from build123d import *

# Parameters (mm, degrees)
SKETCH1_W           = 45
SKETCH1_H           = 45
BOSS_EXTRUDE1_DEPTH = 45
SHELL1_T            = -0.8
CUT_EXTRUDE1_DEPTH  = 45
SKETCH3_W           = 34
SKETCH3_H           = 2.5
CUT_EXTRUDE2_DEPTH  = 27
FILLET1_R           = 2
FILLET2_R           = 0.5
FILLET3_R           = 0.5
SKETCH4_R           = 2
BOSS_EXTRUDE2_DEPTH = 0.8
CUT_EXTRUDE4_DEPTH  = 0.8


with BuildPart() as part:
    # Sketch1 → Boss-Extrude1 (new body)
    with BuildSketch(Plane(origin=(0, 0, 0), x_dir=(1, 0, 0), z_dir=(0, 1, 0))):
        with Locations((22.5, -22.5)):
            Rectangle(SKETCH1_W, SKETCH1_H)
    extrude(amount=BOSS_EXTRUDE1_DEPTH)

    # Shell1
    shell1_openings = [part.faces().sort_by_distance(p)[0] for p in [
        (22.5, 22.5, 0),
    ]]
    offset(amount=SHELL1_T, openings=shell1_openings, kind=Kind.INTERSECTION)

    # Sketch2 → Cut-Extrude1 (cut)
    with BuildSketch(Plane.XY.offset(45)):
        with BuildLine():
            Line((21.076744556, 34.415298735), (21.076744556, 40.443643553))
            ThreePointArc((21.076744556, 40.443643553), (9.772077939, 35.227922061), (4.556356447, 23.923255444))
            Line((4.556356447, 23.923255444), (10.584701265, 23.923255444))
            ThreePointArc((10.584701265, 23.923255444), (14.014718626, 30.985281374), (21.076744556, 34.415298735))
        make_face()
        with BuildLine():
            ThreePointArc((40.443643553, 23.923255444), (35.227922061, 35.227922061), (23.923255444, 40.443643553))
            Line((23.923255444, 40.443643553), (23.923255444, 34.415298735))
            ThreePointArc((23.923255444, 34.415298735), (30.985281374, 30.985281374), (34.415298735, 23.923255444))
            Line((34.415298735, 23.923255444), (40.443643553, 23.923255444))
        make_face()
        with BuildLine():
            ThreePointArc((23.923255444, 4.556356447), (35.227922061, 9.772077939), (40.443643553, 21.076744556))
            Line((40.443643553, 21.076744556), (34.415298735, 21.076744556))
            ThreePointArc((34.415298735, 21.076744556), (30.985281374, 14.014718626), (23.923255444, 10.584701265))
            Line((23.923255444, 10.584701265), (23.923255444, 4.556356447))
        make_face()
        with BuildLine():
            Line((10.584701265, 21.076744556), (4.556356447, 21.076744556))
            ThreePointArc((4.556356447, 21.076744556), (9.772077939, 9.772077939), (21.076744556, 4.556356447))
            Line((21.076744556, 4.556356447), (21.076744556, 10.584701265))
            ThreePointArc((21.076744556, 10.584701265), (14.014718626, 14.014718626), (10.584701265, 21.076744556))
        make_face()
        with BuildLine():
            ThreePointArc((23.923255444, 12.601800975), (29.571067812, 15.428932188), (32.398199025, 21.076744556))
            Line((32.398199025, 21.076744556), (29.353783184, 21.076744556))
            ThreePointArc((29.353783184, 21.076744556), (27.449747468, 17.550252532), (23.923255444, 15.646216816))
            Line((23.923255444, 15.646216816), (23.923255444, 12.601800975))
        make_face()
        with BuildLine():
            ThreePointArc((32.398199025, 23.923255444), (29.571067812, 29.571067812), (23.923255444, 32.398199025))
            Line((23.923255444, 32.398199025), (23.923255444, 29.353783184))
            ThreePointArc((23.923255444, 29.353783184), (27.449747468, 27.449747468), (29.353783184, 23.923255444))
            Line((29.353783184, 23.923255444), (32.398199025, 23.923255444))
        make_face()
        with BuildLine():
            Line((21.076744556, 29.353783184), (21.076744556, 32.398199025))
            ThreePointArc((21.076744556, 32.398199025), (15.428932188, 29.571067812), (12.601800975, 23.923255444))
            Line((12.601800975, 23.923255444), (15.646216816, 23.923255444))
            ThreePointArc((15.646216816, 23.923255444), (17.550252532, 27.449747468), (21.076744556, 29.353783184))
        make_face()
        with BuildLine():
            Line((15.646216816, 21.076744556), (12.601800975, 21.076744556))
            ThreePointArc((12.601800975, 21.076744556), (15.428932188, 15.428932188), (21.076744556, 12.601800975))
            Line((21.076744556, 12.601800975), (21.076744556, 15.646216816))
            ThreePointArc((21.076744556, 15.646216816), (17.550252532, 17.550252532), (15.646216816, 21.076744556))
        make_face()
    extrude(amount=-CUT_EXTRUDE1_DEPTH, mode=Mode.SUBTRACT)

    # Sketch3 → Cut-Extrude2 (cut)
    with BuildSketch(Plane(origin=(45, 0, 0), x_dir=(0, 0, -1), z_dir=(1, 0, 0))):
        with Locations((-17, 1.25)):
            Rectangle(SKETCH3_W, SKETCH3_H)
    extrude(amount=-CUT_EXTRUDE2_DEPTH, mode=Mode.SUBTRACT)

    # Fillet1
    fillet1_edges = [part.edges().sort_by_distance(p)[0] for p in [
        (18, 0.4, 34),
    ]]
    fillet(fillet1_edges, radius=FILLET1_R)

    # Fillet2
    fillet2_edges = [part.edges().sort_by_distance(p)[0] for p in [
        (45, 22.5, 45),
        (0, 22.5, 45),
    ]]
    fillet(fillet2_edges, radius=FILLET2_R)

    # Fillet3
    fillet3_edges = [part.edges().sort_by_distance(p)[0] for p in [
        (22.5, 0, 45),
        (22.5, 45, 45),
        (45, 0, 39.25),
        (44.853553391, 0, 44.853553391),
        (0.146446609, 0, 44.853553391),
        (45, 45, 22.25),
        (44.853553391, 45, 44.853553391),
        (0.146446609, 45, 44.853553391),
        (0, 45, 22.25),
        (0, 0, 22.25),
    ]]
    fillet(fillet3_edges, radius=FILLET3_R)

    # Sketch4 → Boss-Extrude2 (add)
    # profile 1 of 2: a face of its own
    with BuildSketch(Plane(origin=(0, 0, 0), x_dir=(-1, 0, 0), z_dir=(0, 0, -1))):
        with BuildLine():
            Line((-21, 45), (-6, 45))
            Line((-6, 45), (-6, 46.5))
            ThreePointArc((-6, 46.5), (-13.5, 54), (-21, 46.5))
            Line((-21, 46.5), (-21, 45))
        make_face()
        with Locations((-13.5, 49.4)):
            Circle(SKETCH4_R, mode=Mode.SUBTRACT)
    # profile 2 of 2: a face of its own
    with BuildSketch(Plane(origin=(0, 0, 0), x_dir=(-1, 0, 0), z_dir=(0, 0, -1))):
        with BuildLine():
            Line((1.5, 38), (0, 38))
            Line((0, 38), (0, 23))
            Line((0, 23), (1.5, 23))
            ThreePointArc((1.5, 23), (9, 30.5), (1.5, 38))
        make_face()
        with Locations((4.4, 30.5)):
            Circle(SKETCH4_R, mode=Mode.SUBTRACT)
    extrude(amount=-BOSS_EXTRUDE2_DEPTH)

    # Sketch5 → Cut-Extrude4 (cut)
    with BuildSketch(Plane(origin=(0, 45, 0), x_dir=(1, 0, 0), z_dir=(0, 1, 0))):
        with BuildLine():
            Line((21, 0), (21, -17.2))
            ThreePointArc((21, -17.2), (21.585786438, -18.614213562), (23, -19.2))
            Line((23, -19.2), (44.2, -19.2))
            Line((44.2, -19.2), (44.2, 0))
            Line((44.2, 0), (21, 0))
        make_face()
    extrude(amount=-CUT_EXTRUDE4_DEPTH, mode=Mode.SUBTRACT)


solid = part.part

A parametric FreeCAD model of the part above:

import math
import FreeCAD as App
import Part
import Sketcher
from FreeCAD import Vector
Q = App.Units.Quantity


def edges_at(feature, points):
    """Names of the edges that pass closest to the given points."""
    edges = feature.Shape.Edges
    near = lambda p: min(range(len(edges)), key=lambda i: edges[i].distToShape(Part.Vertex(*p))[0])
    return sorted({f"Edge{near(p) + 1}" for p in points})


def faces_at(feature, points):
    """Names of the faces that lie closest to the given points."""
    faces = feature.Shape.Faces
    near = lambda p: min(range(len(faces)), key=lambda i: faces[i].distToShape(Part.Vertex(*p))[0])
    return sorted({f"Face{near(p) + 1}" for p in points})


def add_polygon(sketch, points):
    """Adds a closed chain of lines whose ends are joined by coincident constraints."""
    first, n = sketch.GeometryCount, len(points)
    for a, b in zip(points, points[1:] + points[:1]):
        sketch.addGeometry(Part.LineSegment(App.Vector(*a, 0), App.Vector(*b, 0)), False)
    for i in range(n):
        sketch.addConstraint(Sketcher.Constraint("Coincident", first + i, 2, first + (i + 1) % n, 1))

doc = App.newDocument("Part")
body = doc.addObject("PartDesign::Body", "Body")

# Sketch on XZ plane
sketch1 = body.newObject("Sketcher::SketchObject", "Sketch")
sketch1.AttachmentSupport = (doc.getObject("XZ_Plane"), [""])
sketch1.MapMode = "FlatFace"
add_polygon(sketch1, [(0, 0), (0, 45), (45, 45), (45, 0)])  # lines 0-3
sketch1.addConstraint(Sketcher.Constraint("Vertical", 0))
sketch1.addConstraint(Sketcher.Constraint("Horizontal", 1))
sketch1.addConstraint(Sketcher.Constraint("Vertical", 2))
sketch1.addConstraint(Sketcher.Constraint("Horizontal", 3))
sketch1.addConstraint(Sketcher.Constraint("Coincident", 3, 2, -1, 1))
sketch1.addConstraint(Sketcher.Constraint("Equal", 3, 0))
sketch1.addConstraint(Sketcher.Constraint("DistanceX", 1, 1, 1, 2, Q("45 mm")))
pad1 = body.newObject("PartDesign::Pad", "Pad")
pad1.Profile = sketch1
pad1.Length = 45
pad1.Reversed = True
doc.recompute()

thickness = body.newObject("PartDesign::Thickness", "Thickness")
thickness.Base = (pad1, faces_at(pad1, [(22.5, 22.5, 0)]))
thickness.Value = 0.8
thickness.Reversed = True
thickness.Join = "Intersection"

# Sketch on XY plane
sketch2 = body.newObject("Sketcher::SketchObject", "Sketch001")
sketch2.AttachmentSupport = (doc.getObject("XY_Plane"), [""])
sketch2.MapMode = "FlatFace"
sketch2.AttachmentOffset = App.Placement(Vector(0, 0, 45), App.Rotation())
sketch2.addGeometry(Part.LineSegment(Vector(21.1, 34.4, 0), Vector(21.1, 40.4, 0)), False)
sketch2.addGeometry(Part.ArcOfCircle(Part.Circle(Vector(22.5, 22.5, 0), Vector(0, 0, 1), 18), math.radians(95), math.radians(175)), False)
sketch2.addGeometry(Part.LineSegment(Vector(4.6, 23.9, 0), Vector(10.6, 23.9, 0)), False)
sketch2.addGeometry(Part.ArcOfCircle(Part.Circle(Vector(22.5, 22.5, 0), Vector(0, 0, 1), 12), math.radians(97), math.radians(173)), False)
sketch2.addGeometry(Part.ArcOfCircle(Part.Circle(Vector(22.5, 22.5, 0), Vector(0, 0, 1), 18), math.radians(5), math.radians(85)), False)
sketch2.addGeometry(Part.LineSegment(Vector(23.9, 40.4, 0), Vector(23.9, 34.4, 0)), False)
sketch2.addGeometry(Part.ArcOfCircle(Part.Circle(Vector(22.5, 22.5, 0), Vector(0, 0, 1), 12), math.radians(7), math.radians(83)), False)
sketch2.addGeometry(Part.LineSegment(Vector(34.4, 23.9, 0), Vector(40.4, 23.9, 0)), False)
sketch2.addGeometry(Part.ArcOfCircle(Part.Circle(Vector(22.5, 22.5, 0), Vector(0, 0, 1), 18), math.radians(-85), math.radians(-5)), False)
sketch2.addGeometry(Part.LineSegment(Vector(40.4, 21.1, 0), Vector(34.4, 21.1, 0)), False)
sketch2.addGeometry(Part.ArcOfCircle(Part.Circle(Vector(22.5, 22.5, 0), Vector(0, 0, 1), 12), math.radians(-83), math.radians(-7)), False)
sketch2.addGeometry(Part.LineSegment(Vector(23.9, 10.6, 0), Vector(23.9, 4.6, 0)), False)
sketch2.addGeometry(Part.LineSegment(Vector(10.6, 21.1, 0), Vector(4.6, 21.1, 0)), False)
sketch2.addGeometry(Part.ArcOfCircle(Part.Circle(Vector(22.5, 22.5, 0), Vector(0, 0, 1), 18), math.radians(-175), math.radians(-95)), False)
sketch2.addGeometry(Part.LineSegment(Vector(21.1, 4.6, 0), Vector(21.1, 10.6, 0)), False)
sketch2.addGeometry(Part.ArcOfCircle(Part.Circle(Vector(22.5, 22.5, 0), Vector(0, 0, 1), 12), math.radians(-173), math.radians(-97)), False)
sketch2.addGeometry(Part.ArcOfCircle(Part.Circle(Vector(22.5, 22.5, 0), Vector(0, 0, 1), 10), math.radians(-82), math.radians(-8)), False)
sketch2.addGeometry(Part.LineSegment(Vector(32.4, 21.1, 0), Vector(29.4, 21.1, 0)), False)
sketch2.addGeometry(Part.ArcOfCircle(Part.Circle(Vector(22.5, 22.5, 0), Vector(0, 0, 1), 7), math.radians(-78), math.radians(-12)), False)
sketch2.addGeometry(Part.LineSegment(Vector(23.9, 15.6, 0), Vector(23.9, 12.6, 0)), False)
sketch2.addGeometry(Part.ArcOfCircle(Part.Circle(Vector(22.5, 22.5, 0), Vector(0, 0, 1), 10), math.radians(8), math.radians(82)), False)
sketch2.addGeometry(Part.LineSegment(Vector(23.9, 32.4, 0), Vector(23.9, 29.4, 0)), False)
sketch2.addGeometry(Part.ArcOfCircle(Part.Circle(Vector(22.5, 22.5, 0), Vector(0, 0, 1), 7), math.radians(12), math.radians(78)), False)
sketch2.addGeometry(Part.LineSegment(Vector(29.4, 23.9, 0), Vector(32.4, 23.9, 0)), False)
sketch2.addGeometry(Part.LineSegment(Vector(21.1, 29.4, 0), Vector(21.1, 32.4, 0)), False)
sketch2.addGeometry(Part.ArcOfCircle(Part.Circle(Vector(22.5, 22.5, 0), Vector(0, 0, 1), 10), math.radians(98), math.radians(172)), False)
sketch2.addGeometry(Part.LineSegment(Vector(12.6, 23.9, 0), Vector(15.6, 23.9, 0)), False)
sketch2.addGeometry(Part.ArcOfCircle(Part.Circle(Vector(22.5, 22.5, 0), Vector(0, 0, 1), 7), math.radians(102), math.radians(168)), False)
sketch2.addGeometry(Part.LineSegment(Vector(15.6, 21.1, 0), Vector(12.6, 21.1, 0)), False)
sketch2.addGeometry(Part.ArcOfCircle(Part.Circle(Vector(22.5, 22.5, 0), Vector(0, 0, 1), 10), math.radians(-172), math.radians(-98)), False)
sketch2.addGeometry(Part.LineSegment(Vector(21.1, 12.6, 0), Vector(21.1, 15.6, 0)), False)
sketch2.addGeometry(Part.ArcOfCircle(Part.Circle(Vector(22.5, 22.5, 0), Vector(0, 0, 1), 7), math.radians(-168), math.radians(-102)), False)
sketch2.addConstraint(Sketcher.Constraint("Coincident", 0, 2, 1, 1))
sketch2.addConstraint(Sketcher.Constraint("Coincident", 1, 2, 2, 1))
sketch2.addConstraint(Sketcher.Constraint("Coincident", 2, 2, 3, 2))
sketch2.addConstraint(Sketcher.Constraint("Coincident", 3, 1, 0, 1))
sketch2.addConstraint(Sketcher.Constraint("Coincident", 4, 2, 5, 1))
sketch2.addConstraint(Sketcher.Constraint("Coincident", 5, 2, 6, 2))
sketch2.addConstraint(Sketcher.Constraint("Coincident", 6, 1, 7, 1))
sketch2.addConstraint(Sketcher.Constraint("Coincident", 7, 2, 4, 1))
sketch2.addConstraint(Sketcher.Constraint("Coincident", 8, 2, 9, 1))
sketch2.addConstraint(Sketcher.Constraint("Coincident", 9, 2, 10, 2))
sketch2.addConstraint(Sketcher.Constraint("Coincident", 10, 1, 11, 1))
sketch2.addConstraint(Sketcher.Constraint("Coincident", 11, 2, 8, 1))
sketch2.addConstraint(Sketcher.Constraint("Coincident", 12, 2, 13, 1))
sketch2.addConstraint(Sketcher.Constraint("Coincident", 13, 2, 14, 1))
sketch2.addConstraint(Sketcher.Constraint("Coincident", 14, 2, 15, 2))
sketch2.addConstraint(Sketcher.Constraint("Coincident", 15, 1, 12, 1))
sketch2.addConstraint(Sketcher.Constraint("Coincident", 16, 2, 17, 1))
sketch2.addConstraint(Sketcher.Constraint("Coincident", 17, 2, 18, 2))
sketch2.addConstraint(Sketcher.Constraint("Coincident", 18, 1, 19, 1))
sketch2.addConstraint(Sketcher.Constraint("Coincident", 19, 2, 16, 1))
sketch2.addConstraint(Sketcher.Constraint("Coincident", 20, 2, 21, 1))
sketch2.addConstraint(Sketcher.Constraint("Coincident", 21, 2, 22, 2))
sketch2.addConstraint(Sketcher.Constraint("Coincident", 22, 1, 23, 1))
sketch2.addConstraint(Sketcher.Constraint("Coincident", 23, 2, 20, 1))
sketch2.addConstraint(Sketcher.Constraint("Coincident", 24, 2, 25, 1))
sketch2.addConstraint(Sketcher.Constraint("Coincident", 25, 2, 26, 1))
sketch2.addConstraint(Sketcher.Constraint("Coincident", 26, 2, 27, 2))
sketch2.addConstraint(Sketcher.Constraint("Coincident", 27, 1, 24, 1))
sketch2.addConstraint(Sketcher.Constraint("Coincident", 28, 2, 29, 1))
sketch2.addConstraint(Sketcher.Constraint("Coincident", 29, 2, 30, 1))
sketch2.addConstraint(Sketcher.Constraint("Coincident", 30, 2, 31, 2))
sketch2.addConstraint(Sketcher.Constraint("Coincident", 31, 1, 28, 1))
sketch2.addConstraint(Sketcher.Constraint("Vertical", 0))
sketch2.addConstraint(Sketcher.Constraint("Horizontal", 2))
sketch2.addConstraint(Sketcher.Constraint("Vertical", 5))
sketch2.addConstraint(Sketcher.Constraint("Horizontal", 7))
sketch2.addConstraint(Sketcher.Constraint("Horizontal", 9))
sketch2.addConstraint(Sketcher.Constraint("Vertical", 11))
sketch2.addConstraint(Sketcher.Constraint("Horizontal", 12))
sketch2.addConstraint(Sketcher.Constraint("Vertical", 14))
sketch2.addConstraint(Sketcher.Constraint("Horizontal", 17))
sketch2.addConstraint(Sketcher.Constraint("Vertical", 19))
sketch2.addConstraint(Sketcher.Constraint("Vertical", 21))
sketch2.addConstraint(Sketcher.Constraint("Horizontal", 23))
sketch2.addConstraint(Sketcher.Constraint("Vertical", 24))
sketch2.addConstraint(Sketcher.Constraint("Horizontal", 26))
sketch2.addConstraint(Sketcher.Constraint("Horizontal", 28))
sketch2.addConstraint(Sketcher.Constraint("Vertical", 30))
sketch2.addConstraint(Sketcher.Constraint("Coincident", 3, 3, 1, 3))
sketch2.addConstraint(Sketcher.Constraint("Coincident", 4, 3, 1, 3))
sketch2.addConstraint(Sketcher.Constraint("Coincident", 6, 3, 1, 3))
sketch2.addConstraint(Sketcher.Constraint("Coincident", 8, 3, 1, 3))
sketch2.addConstraint(Sketcher.Constraint("Coincident", 10, 3, 1, 3))
sketch2.addConstraint(Sketcher.Constraint("Coincident", 13, 3, 1, 3))
sketch2.addConstraint(Sketcher.Constraint("Coincident", 15, 3, 1, 3))
sketch2.addConstraint(Sketcher.Constraint("Coincident", 16, 3, 1, 3))
sketch2.addConstraint(Sketcher.Constraint("Coincident", 18, 3, 1, 3))
sketch2.addConstraint(Sketcher.Constraint("Coincident", 20, 3, 1, 3))
sketch2.addConstraint(Sketcher.Constraint("Coincident", 22, 3, 1, 3))
sketch2.addConstraint(Sketcher.Constraint("Coincident", 25, 3, 1, 3))
sketch2.addConstraint(Sketcher.Constraint("Coincident", 27, 3, 1, 3))
sketch2.addConstraint(Sketcher.Constraint("Coincident", 29, 3, 1, 3))
sketch2.addConstraint(Sketcher.Constraint("Coincident", 31, 3, 1, 3))
sketch2.addConstraint(Sketcher.Constraint("Equal", 1, 4))
sketch2.addConstraint(Sketcher.Constraint("Equal", 3, 6))
sketch2.addConstraint(Sketcher.Constraint("Equal", 4, 8))
sketch2.addConstraint(Sketcher.Constraint("Equal", 6, 10))
sketch2.addConstraint(Sketcher.Constraint("Equal", 8, 13))
sketch2.addConstraint(Sketcher.Constraint("Equal", 10, 15))
sketch2.addConstraint(Sketcher.Constraint("Equal", 16, 20))
sketch2.addConstraint(Sketcher.Constraint("Equal", 18, 22))
sketch2.addConstraint(Sketcher.Constraint("Equal", 20, 25))
sketch2.addConstraint(Sketcher.Constraint("Equal", 22, 27))
sketch2.addConstraint(Sketcher.Constraint("Equal", 25, 29))
sketch2.addConstraint(Sketcher.Constraint("Equal", 27, 31))
sketch2.addConstraint(Sketcher.Constraint("Horizontal", 0, 2, 4, 2))
sketch2.addConstraint(Sketcher.Constraint("Horizontal", 2, 2, 6, 1))
sketch2.addConstraint(Sketcher.Constraint("Horizontal", 9, 2, 12, 2))
sketch2.addConstraint(Sketcher.Constraint("Horizontal", 11, 2, 13, 2))
sketch2.addConstraint(Sketcher.Constraint("Horizontal", 15, 1, 16, 2))
sketch2.addConstraint(Sketcher.Constraint("Horizontal", 7, 2, 22, 1))
sketch2.addConstraint(Sketcher.Constraint("Horizontal", 20, 2, 24, 2))
sketch2.addConstraint(Sketcher.Constraint("Horizontal", 23, 2, 25, 2))
sketch2.addConstraint(Sketcher.Constraint("Horizontal", 17, 2, 28, 2))
sketch2.addConstraint(Sketcher.Constraint("Horizontal", 19, 2, 29, 2))
sketch2.addConstraint(Sketcher.Constraint("Vertical", 7, 2, 8, 2))
sketch2.addConstraint(Sketcher.Constraint("Vertical", 5, 2, 10, 1))
sketch2.addConstraint(Sketcher.Constraint("Vertical", 11, 2, 18, 1))
sketch2.addConstraint(Sketcher.Constraint("Vertical", 19, 2, 20, 2))
sketch2.addConstraint(Sketcher.Constraint("Equal", 12, 0))
sketch2.addConstraint(Sketcher.Constraint("Radius", 1, Q("18 mm")))
sketch2.addConstraint(Sketcher.Constraint("Radius", 3, Q("12 mm")))
sketch2.addConstraint(Sketcher.Constraint("Radius", 16, Q("10 mm")))
sketch2.addConstraint(Sketcher.Constraint("Radius", 18, Q("7 mm")))
sketch2.addConstraint(Sketcher.Constraint("DistanceX", -1, 1, 1, 3, Q("22.5 mm")))
sketch2.addConstraint(Sketcher.Constraint("DistanceY", -1, 1, 1, 3, Q("22.5 mm")))
sketch2.addConstraint(Sketcher.Constraint("DistanceX", -1, 1, 2, 2, Q("10.584701 mm")))
pocket1 = body.newObject("PartDesign::Pocket", "Pocket")
pocket1.Profile = sketch2
pocket1.Length = 45

# Sketch on YZ plane
sketch3 = body.newObject("Sketcher::SketchObject", "Sketch002")
sketch3.AttachmentSupport = (doc.getObject("YZ_Plane"), [""])
sketch3.MapMode = "FlatFace"
sketch3.AttachmentOffset = App.Placement(Vector(0, 0, 45), App.Rotation())
add_polygon(sketch3, [(2.5, 34), (0, 34), (0, 0), (2.5, 0)])  # lines 0-3
sketch3.addConstraint(Sketcher.Constraint("Horizontal", 0))
sketch3.addConstraint(Sketcher.Constraint("Vertical", 1))
sketch3.addConstraint(Sketcher.Constraint("Horizontal", 2))
sketch3.addConstraint(Sketcher.Constraint("Vertical", 3))
sketch3.addConstraint(Sketcher.Constraint("Coincident", 1, 2, -1, 1))
sketch3.addConstraint(Sketcher.Constraint("DistanceY", 1, 2, 1, 1, Q("34 mm")))
sketch3.addConstraint(Sketcher.Constraint("DistanceX", 0, 2, 0, 1, Q("2.5 mm")))
pocket2 = body.newObject("PartDesign::Pocket", "Pocket001")
pocket2.Profile = sketch3
pocket2.Length = 27
doc.recompute()

fillet = body.newObject("PartDesign::Fillet", "Fillet")
fillet.Base = (pocket2, edges_at(pocket2, [(18, 0.4, 34)]))
fillet.Radius = 2
doc.recompute()

fillet2 = body.newObject("PartDesign::Fillet", "Fillet001")
fillet2.Base = (fillet, edges_at(fillet, [(45, 22.5, 45), (0, 22.5, 45)]))
fillet2.Radius = 0.5
doc.recompute()

fillet3 = body.newObject("PartDesign::Fillet", "Fillet002")
fillet3.Base = (fillet2, edges_at(fillet2, [
    (22.5, 0, 45),
    (22.5, 45, 45),
    (45, 0, 39.25),
    (44.854, 0, 44.854),
    (0.146, 0, 44.854),
    (45, 45, 22.25),
    (44.854, 45, 44.854),
    (0.146, 45, 44.854),
    (0, 45, 22.25),
    (0, 0, 22.25),
]))
fillet3.Radius = 0.5

# Sketch on XY plane
sketch4 = body.newObject("Sketcher::SketchObject", "Sketch003")
sketch4.AttachmentSupport = (doc.getObject("XY_Plane"), [""])
sketch4.MapMode = "FlatFace"
sketch4.addGeometry(Part.LineSegment(Vector(21, 45, 0), Vector(6, 45, 0)), False)
sketch4.addGeometry(Part.LineSegment(Vector(6, 45, 0), Vector(6, 46.5, 0)), False)
sketch4.addGeometry(Part.ArcOfCircle(Part.Circle(Vector(13.5, 46.5, 0), Vector(0, 0, 1), 7.5), math.radians(0), math.radians(180)), False)
sketch4.addGeometry(Part.LineSegment(Vector(21, 46.5, 0), Vector(21, 45, 0)), False)
sketch4.addGeometry(Part.Circle(Vector(13.5, 49.4, 0), Vector(0, 0, 1), 2), False)
sketch4.addGeometry(Part.LineSegment(Vector(-1.5, 38, 0), Vector(0, 38, 0)), False)
sketch4.addGeometry(Part.LineSegment(Vector(0, 38, 0), Vector(0, 23, 0)), False)
sketch4.addGeometry(Part.LineSegment(Vector(0, 23, 0), Vector(-1.5, 23, 0)), False)
sketch4.addGeometry(Part.ArcOfCircle(Part.Circle(Vector(-1.5, 30.5, 0), Vector(0, 0, 1), 7.5), math.radians(90), math.radians(270)), False)
sketch4.addGeometry(Part.Circle(Vector(-4.4, 30.5, 0), Vector(0, 0, 1), 2), False)
sketch4.addConstraint(Sketcher.Constraint("Coincident", 0, 2, 1, 1))
sketch4.addConstraint(Sketcher.Constraint("Tangent", 1, 2, 2, 2))
sketch4.addConstraint(Sketcher.Constraint("Tangent", 2, 1, 3, 1))
sketch4.addConstraint(Sketcher.Constraint("Coincident", 3, 2, 0, 1))
sketch4.addConstraint(Sketcher.Constraint("Coincident", 5, 2, 6, 1))
sketch4.addConstraint(Sketcher.Constraint("Coincident", 6, 2, 7, 1))
sketch4.addConstraint(Sketcher.Constraint("Tangent", 7, 2, 8, 2))
sketch4.addConstraint(Sketcher.Constraint("Tangent", 8, 1, 5, 1))
sketch4.addConstraint(Sketcher.Constraint("Horizontal", 0))
sketch4.addConstraint(Sketcher.Constraint("Vertical", 1))
sketch4.addConstraint(Sketcher.Constraint("Vertical", 3))
sketch4.addConstraint(Sketcher.Constraint("Horizontal", 5))
sketch4.addConstraint(Sketcher.Constraint("Vertical", 6))
sketch4.addConstraint(Sketcher.Constraint("Horizontal", 7))
sketch4.addConstraint(Sketcher.Constraint("Equal", 2, 8))
sketch4.addConstraint(Sketcher.Constraint("Equal", 4, 9))
sketch4.addConstraint(Sketcher.Constraint("PointOnObject", 5, 2, -2))
sketch4.addConstraint(Sketcher.Constraint("Horizontal", 8, 3, 9, 3))
sketch4.addConstraint(Sketcher.Constraint("Vertical", 2, 3, 4, 3))
sketch4.addConstraint(Sketcher.Constraint("Equal", 7, 1))
sketch4.addConstraint(Sketcher.Constraint("Diameter", 4, Q("4 mm")))
sketch4.addConstraint(Sketcher.Constraint("Radius", 2, Q("7.5 mm")))
sketch4.addConstraint(Sketcher.Constraint("DistanceX", 5, 1, 5, 2, Q("1.5 mm")))
sketch4.addConstraint(Sketcher.Constraint("DistanceX", -1, 1, 0, 2, Q("6 mm")))
sketch4.addConstraint(Sketcher.Constraint("DistanceY", -1, 1, 0, 2, Q("45 mm")))
sketch4.addConstraint(Sketcher.Constraint("DistanceY", -1, 1, 5, 2, Q("38 mm")))
sketch4.addConstraint(Sketcher.Constraint("DistanceY", -1, 1, 4, 3, Q("49.4 mm")))
sketch4.addConstraint(Sketcher.Constraint("DistanceX", 9, 3, -1, 1, Q("4.4 mm")))
pad2 = body.newObject("PartDesign::Pad", "Pad001")
pad2.Profile = sketch4
pad2.Length = 0.8

# Sketch on XZ plane
sketch5 = body.newObject("Sketcher::SketchObject", "Sketch004")
sketch5.AttachmentSupport = (doc.getObject("XZ_Plane"), [""])
sketch5.MapMode = "FlatFace"
sketch5.AttachmentOffset = App.Placement(Vector(0, 0, -45), App.Rotation())
sketch5.addGeometry(Part.LineSegment(Vector(21, 0, 0), Vector(21, 17.2, 0)), False)
sketch5.addGeometry(Part.ArcOfCircle(Part.Circle(Vector(23, 17.2, 0), Vector(0, 0, 1), 2), math.radians(90), math.radians(180)), False)
sketch5.addGeometry(Part.LineSegment(Vector(23, 19.2, 0), Vector(44.2, 19.2, 0)), False)
sketch5.addGeometry(Part.LineSegment(Vector(44.2, 19.2, 0), Vector(44.2, 0, 0)), False)
sketch5.addGeometry(Part.LineSegment(Vector(44.2, 0, 0), Vector(21, 0, 0)), False)
sketch5.addConstraint(Sketcher.Constraint("Tangent", 0, 2, 1, 2))
sketch5.addConstraint(Sketcher.Constraint("Tangent", 1, 1, 2, 1))
sketch5.addConstraint(Sketcher.Constraint("Coincident", 2, 2, 3, 1))
sketch5.addConstraint(Sketcher.Constraint("Coincident", 3, 2, 4, 1))
sketch5.addConstraint(Sketcher.Constraint("Coincident", 4, 2, 0, 1))
sketch5.addConstraint(Sketcher.Constraint("Vertical", 0))
sketch5.addConstraint(Sketcher.Constraint("Horizontal", 2))
sketch5.addConstraint(Sketcher.Constraint("Vertical", 3))
sketch5.addConstraint(Sketcher.Constraint("Horizontal", 4))
sketch5.addConstraint(Sketcher.Constraint("PointOnObject", 3, 2, -1))
sketch5.addConstraint(Sketcher.Constraint("Radius", 1, Q("2 mm")))
sketch5.addConstraint(Sketcher.Constraint("DistanceX", 2, 1, 2, 2, Q("21.2 mm")))
sketch5.addConstraint(Sketcher.Constraint("DistanceY", 0, 1, 0, 2, Q("17.2 mm")))
sketch5.addConstraint(Sketcher.Constraint("DistanceX", -1, 1, 1, 3, Q("23 mm")))
pocket3 = body.newObject("PartDesign::Pocket", "Pocket002")
pocket3.Profile = sketch5
pocket3.Length = 0.8
pocket3.Reversed = True

doc.recompute()
